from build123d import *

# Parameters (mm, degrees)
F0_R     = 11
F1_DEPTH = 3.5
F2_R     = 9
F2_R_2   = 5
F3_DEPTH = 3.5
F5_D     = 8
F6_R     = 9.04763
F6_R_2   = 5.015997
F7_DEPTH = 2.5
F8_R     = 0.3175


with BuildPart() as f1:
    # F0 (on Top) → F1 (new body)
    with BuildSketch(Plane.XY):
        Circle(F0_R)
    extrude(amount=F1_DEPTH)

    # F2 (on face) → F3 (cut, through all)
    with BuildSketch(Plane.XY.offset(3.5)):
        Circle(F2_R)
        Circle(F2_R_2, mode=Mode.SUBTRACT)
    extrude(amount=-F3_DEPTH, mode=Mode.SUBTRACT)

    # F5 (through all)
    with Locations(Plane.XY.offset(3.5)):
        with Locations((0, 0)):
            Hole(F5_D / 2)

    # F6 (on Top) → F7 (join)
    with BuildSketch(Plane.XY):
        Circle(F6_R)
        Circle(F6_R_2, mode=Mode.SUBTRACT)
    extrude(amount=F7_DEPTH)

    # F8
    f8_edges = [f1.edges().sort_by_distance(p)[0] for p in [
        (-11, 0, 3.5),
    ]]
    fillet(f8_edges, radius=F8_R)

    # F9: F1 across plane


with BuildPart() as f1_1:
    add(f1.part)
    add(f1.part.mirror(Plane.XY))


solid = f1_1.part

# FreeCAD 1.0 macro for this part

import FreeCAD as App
import Part
import Sketcher


def edges_at(feature, points):
    """Names of the edges that pass closest to the given points."""
    edges = feature.Shape.Edges
    near = lambda p: min(range(len(edges)), key=lambda i: edges[i].distToShape(Part.Vertex(*p))[0])
    return sorted({f"Edge{near(p) + 1}" for p in points})

doc = App.newDocument("Part")
params = doc.addObject("Spreadsheet::Sheet", "Params")
for row, (alias, value) in enumerate([
    ("sketch1_diameter", "22 mm"),
    ("pad1_length", "3.5 mm"),
    ("sketch2_diameter", "18 mm"),
    ("sketch2_diameter2", "10 mm"),
    ("sketch3_diameter", "8 mm"),
    ("hole_diameter", "8 mm"),
    ("pad2_length", "2.5 mm"),
    ("fillet_radius", "0.3175 mm"),
], start=1):
    params.set(f"A{row}", alias)
    params.set(f"B{row}", "=" + value)
    params.setAlias(f"B{row}", alias)

body = doc.addObject("PartDesign::Body", "Body")
body.AllowCompound = True

sketch1 = doc.addObject("Sketcher::SketchObject", "Sketch")
body.addObject(sketch1)
sketch1.AttachmentSupport = (doc.XY_Plane, [""])
sketch1.MapMode = "FlatFace"
sketch1.addGeometry(Part.Circle(App.Vector(0, 0, 0), App.Vector(0, 0, 1), 11), False)
sketch1.addConstraint(Sketcher.Constraint("Coincident", 0, 3, -1, 1))
sketch1.addConstraint(Sketcher.Constraint("Diameter", 0, 22.0))
sketch1.setExpression("Constraints[1]", "Params.sketch1_diameter")
pad1 = doc.addObject("PartDesign::Pad", "Pad")
body.addObject(pad1)
pad1.Profile = sketch1
pad1.setExpression("Length", "Params.pad1_length")

sketch2 = doc.addObject("Sketcher::SketchObject", "Sketch001")
body.addObject(sketch2)
sketch2.AttachmentSupport = (doc.XY_Plane, [""])
sketch2.MapMode = "FlatFace"
sketch2.AttachmentOffset = App.Placement(App.Vector(0, 0, 3.5), App.Rotation())
sketch2.addGeometry(Part.Circle(App.Vector(0, 0, 0), App.Vector(0, 0, 1), 9), False)
sketch2.addGeometry(Part.Circle(App.Vector(0, 0, 0), App.Vector(0, 0, 1), 5), False)
sketch2.addConstraint(Sketcher.Constraint("Coincident", 0, 3, -1, 1))
sketch2.addConstraint(Sketcher.Constraint("Coincident", 1, 3, -1, 1))
sketch2.addConstraint(Sketcher.Constraint("Diameter", 0, 18.0))
sketch2.addConstraint(Sketcher.Constraint("Diameter", 1, 10.0))
sketch2.setExpression("Constraints[2]", "Params.sketch2_diameter")
sketch2.setExpression("Constraints[3]", "Params.sketch2_diameter2")
pocket1 = doc.addObject("PartDesign::Pocket", "Pocket")
body.addObject(pocket1)
pocket1.Profile = sketch2
pocket1.Type = "ThroughAll"

sketch3 = doc.addObject("Sketcher::SketchObject", "Sketch002")
body.addObject(sketch3)
sketch3.AttachmentSupport = (doc.XY_Plane, [""])
sketch3.MapMode = "FlatFace"
sketch3.AttachmentOffset = App.Placement(App.Vector(0, 0, 3.5), App.Rotation())
sketch3.addGeometry(Part.Circle(App.Vector(0, 0, 0), App.Vector(0, 0, 1), 4), False)
sketch3.addConstraint(Sketcher.Constraint("Coincident", 0, 3, -1, 1))
sketch3.addConstraint(Sketcher.Constraint("Diameter", 0, 8.0))
sketch3.setExpression("Constraints[1]", "Params.sketch3_diameter")
doc.recompute()
hole = doc.addObject("PartDesign::Hole", "Hole")
body.addObject(hole)
hole.Profile = sketch3
hole.ThreadType = "None"
hole.setExpression("Diameter", "Params.hole_diameter")
hole.DepthType = "ThroughAll"

sketch4 = doc.addObject("Sketcher::SketchObject", "Sketch003")
body.addObject(sketch4)
sketch4.AttachmentSupport = (doc.XY_Plane, [""])
sketch4.MapMode = "FlatFace"
sketch4.addGeometry(Part.Circle(App.Vector(0, 0, 0), App.Vector(0, 0, 1), 9), False)
sketch4.addGeometry(Part.Circle(App.Vector(0, 0, 0), App.Vector(0, 0, 1), 5), False)
sketch4.addConstraint(Sketcher.Constraint("Coincident", 0, 3, -1, 1))
sketch4.addConstraint(Sketcher.Constraint("Coincident", 1, 3, -1, 1))
sketch4.addConstraint(Sketcher.Constraint("Diameter", 0, 18.09526))
sketch4.addConstraint(Sketcher.Constraint("Diameter", 1, 10.031994))
pad2 = doc.addObject("PartDesign::Pad", "Pad001")
body.addObject(pad2)
pad2.Profile = sketch4
pad2.setExpression("Length", "Params.pad2_length")
doc.recompute()

fillet = doc.addObject("PartDesign::Fillet", "Fillet")
body.addObject(fillet)
fillet.Base = (pad2, edges_at(pad2, [(-11, 0, 3.5)]))
fillet.setExpression("Radius", "Params.fillet_radius")
body2 = doc.addObject("PartDesign::Body", "Body001")
body2.AllowCompound = True
doc.recompute()

body2.BaseFeature = body
doc.recompute()

mirroring = doc.addObject("Part::Mirroring", "Mirroring")
mirroring.Source = body
mirroring.Base = App.Vector(0, 0, 0)
mirroring.Normal = App.Vector(0, 0, 1)
body3 = doc.addObject("PartDesign::Body", "Body002")
body3.BaseFeature = mirroring
boolean = doc.addObject("PartDesign::Boolean", "Boolean")
body2.addObject(boolean)
boolean.Type = "Fuse"
boolean.addObjects([body3])
doc.recompute()
mirroring.Visibility = False

doc.recompute()
